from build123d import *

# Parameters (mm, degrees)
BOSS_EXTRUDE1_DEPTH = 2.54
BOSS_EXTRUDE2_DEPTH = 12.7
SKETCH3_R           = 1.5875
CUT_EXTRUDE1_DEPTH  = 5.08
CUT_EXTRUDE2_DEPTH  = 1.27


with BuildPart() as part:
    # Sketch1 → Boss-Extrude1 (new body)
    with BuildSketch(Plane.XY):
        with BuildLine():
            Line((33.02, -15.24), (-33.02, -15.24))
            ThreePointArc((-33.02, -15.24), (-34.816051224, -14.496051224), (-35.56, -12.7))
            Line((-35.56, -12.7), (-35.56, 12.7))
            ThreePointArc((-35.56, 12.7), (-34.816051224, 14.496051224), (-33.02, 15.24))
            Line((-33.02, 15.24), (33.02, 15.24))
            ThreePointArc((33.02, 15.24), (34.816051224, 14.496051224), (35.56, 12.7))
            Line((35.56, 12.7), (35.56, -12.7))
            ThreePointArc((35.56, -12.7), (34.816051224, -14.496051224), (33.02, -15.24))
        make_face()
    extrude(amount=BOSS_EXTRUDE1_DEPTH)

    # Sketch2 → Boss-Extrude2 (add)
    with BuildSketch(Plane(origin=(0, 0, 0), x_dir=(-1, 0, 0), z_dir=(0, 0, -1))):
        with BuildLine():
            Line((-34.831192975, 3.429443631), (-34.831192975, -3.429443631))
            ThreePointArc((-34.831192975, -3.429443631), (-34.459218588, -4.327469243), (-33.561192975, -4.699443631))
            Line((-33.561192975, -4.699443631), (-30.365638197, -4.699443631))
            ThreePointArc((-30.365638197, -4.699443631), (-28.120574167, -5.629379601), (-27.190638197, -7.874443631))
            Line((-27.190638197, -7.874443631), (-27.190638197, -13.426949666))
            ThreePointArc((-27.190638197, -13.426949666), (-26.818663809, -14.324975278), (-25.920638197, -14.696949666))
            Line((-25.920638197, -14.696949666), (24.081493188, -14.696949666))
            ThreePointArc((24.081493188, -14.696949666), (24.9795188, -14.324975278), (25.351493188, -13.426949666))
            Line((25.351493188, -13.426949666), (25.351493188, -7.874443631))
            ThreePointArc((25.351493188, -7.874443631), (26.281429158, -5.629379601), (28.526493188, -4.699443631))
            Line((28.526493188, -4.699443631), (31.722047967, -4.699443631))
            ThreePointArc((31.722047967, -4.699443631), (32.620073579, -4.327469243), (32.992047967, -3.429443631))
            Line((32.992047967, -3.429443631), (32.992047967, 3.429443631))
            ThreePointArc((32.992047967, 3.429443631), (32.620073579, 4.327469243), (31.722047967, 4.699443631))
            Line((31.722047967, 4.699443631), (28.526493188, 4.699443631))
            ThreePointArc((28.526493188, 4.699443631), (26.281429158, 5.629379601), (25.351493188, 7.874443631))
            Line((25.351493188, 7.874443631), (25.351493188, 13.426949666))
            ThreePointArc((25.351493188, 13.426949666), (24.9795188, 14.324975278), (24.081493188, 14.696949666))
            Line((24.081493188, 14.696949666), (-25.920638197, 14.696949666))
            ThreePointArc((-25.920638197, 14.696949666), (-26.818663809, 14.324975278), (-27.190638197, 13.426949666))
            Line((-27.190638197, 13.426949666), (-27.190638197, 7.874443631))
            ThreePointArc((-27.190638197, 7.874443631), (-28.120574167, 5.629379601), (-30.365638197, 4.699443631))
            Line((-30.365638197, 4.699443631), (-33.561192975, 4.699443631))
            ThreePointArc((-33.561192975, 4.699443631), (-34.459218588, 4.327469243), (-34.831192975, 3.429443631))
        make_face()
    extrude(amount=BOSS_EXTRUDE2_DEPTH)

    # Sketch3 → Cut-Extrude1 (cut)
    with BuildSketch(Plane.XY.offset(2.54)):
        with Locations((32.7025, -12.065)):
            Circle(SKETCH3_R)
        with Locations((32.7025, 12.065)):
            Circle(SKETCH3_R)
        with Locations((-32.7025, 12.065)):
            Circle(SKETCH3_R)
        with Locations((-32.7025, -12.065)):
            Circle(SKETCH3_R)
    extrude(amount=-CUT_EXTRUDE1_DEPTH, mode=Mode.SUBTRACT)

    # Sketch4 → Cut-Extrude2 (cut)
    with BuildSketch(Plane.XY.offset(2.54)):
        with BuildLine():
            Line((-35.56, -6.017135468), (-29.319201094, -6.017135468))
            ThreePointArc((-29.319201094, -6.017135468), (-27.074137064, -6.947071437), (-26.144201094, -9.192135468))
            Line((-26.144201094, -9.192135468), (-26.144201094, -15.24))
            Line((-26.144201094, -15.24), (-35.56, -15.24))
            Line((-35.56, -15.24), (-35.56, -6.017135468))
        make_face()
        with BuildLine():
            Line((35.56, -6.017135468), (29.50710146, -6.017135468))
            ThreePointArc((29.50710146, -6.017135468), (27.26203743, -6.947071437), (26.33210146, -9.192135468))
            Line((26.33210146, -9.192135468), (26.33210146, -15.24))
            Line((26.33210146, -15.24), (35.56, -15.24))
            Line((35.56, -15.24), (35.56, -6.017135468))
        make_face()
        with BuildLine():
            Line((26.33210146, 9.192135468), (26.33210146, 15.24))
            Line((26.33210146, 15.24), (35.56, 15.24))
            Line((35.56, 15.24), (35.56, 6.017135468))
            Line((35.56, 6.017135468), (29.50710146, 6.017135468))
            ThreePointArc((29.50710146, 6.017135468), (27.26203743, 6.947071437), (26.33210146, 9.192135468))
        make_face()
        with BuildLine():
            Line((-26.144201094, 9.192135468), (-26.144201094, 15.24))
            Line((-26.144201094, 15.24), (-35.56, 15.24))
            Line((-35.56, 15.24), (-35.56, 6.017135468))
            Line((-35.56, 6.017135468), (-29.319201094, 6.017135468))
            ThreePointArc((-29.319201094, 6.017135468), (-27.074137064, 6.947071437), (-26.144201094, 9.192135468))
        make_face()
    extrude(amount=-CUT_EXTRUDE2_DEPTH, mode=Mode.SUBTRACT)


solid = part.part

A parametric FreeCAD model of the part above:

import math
import FreeCAD as App
import Part
import Sketcher
from FreeCAD import Vector
Q = App.Units.Quantity

doc = App.newDocument("Part")
body = doc.addObject("PartDesign::Body", "Body")

sketch1 = doc.addObject("Sketcher::SketchObject", "Sketch")
body.addObject(sketch1)
sketch1.AttachmentSupport = (doc.XY_Plane, [""])
sketch1.MapMode = "FlatFace"
sketch1.addGeometry(Part.LineSegment(Vector(-33, -15.2, 0), Vector(33, -15.2, 0)), False)
sketch1.addGeometry(Part.ArcOfCircle(Part.Circle(Vector(33, -12.7, 0), Vector(0, 0, 1), 2.5), math.radians(-90), math.radians(0)), False)
sketch1.addGeometry(Part.LineSegment(Vector(35.6, -12.7, 0), Vector(35.6, 12.7, 0)), False)
sketch1.addGeometry(Part.ArcOfCircle(Part.Circle(Vector(33, 12.7, 0), Vector(0, 0, 1), 2.5), math.radians(0), math.radians(90)), False)
sketch1.addGeometry(Part.LineSegment(Vector(33, 15.2, 0), Vector(-33, 15.2, 0)), False)
sketch1.addGeometry(Part.ArcOfCircle(Part.Circle(Vector(-33, 12.7, 0), Vector(0, 0, 1), 2.5), math.radians(90), math.radians(180)), False)
sketch1.addGeometry(Part.LineSegment(Vector(-35.6, 12.7, 0), Vector(-35.6, -12.7, 0)), False)
sketch1.addGeometry(Part.ArcOfCircle(Part.Circle(Vector(-33, -12.7, 0), Vector(0, 0, 1), 2.5), math.radians(-180), math.radians(-90)), False)
sketch1.addConstraint(Sketcher.Constraint("Tangent", 0, 2, 1, 1))
sketch1.addConstraint(Sketcher.Constraint("Tangent", 1, 2, 2, 1))
sketch1.addConstraint(Sketcher.Constraint("Tangent", 2, 2, 3, 1))
sketch1.addConstraint(Sketcher.Constraint("Tangent", 3, 2, 4, 1))
sketch1.addConstraint(Sketcher.Constraint("Tangent", 4, 2, 5, 1))
sketch1.addConstraint(Sketcher.Constraint("Tangent", 5, 2, 6, 1))
sketch1.addConstraint(Sketcher.Constraint("Tangent", 6, 2, 7, 1))
sketch1.addConstraint(Sketcher.Constraint("Tangent", 7, 2, 0, 1))
sketch1.addConstraint(Sketcher.Constraint("Horizontal", 0))
sketch1.addConstraint(Sketcher.Constraint("Vertical", 2))
sketch1.addConstraint(Sketcher.Constraint("Horizontal", 4))
sketch1.addConstraint(Sketcher.Constraint("Vertical", 6))
sketch1.addConstraint(Sketcher.Constraint("Equal", 1, 3))
sketch1.addConstraint(Sketcher.Constraint("Equal", 3, 5))
sketch1.addConstraint(Sketcher.Constraint("Equal", 5, 7))
sketch1.addConstraint(Sketcher.Constraint("Symmetric", 1, 3, 5, 3, -1, 1))
sketch1.addConstraint(Sketcher.Constraint("Radius", 1, Q("0.1 in")))
sketch1.addConstraint(Sketcher.Constraint("DistanceY", 2, 1, 2, 2, Q("1 in")))
sketch1.addConstraint(Sketcher.Constraint("DistanceX", 0, 1, 0, 2, Q("2.6 in")))
pad1 = doc.addObject("PartDesign::Pad", "Pad")
body.addObject(pad1)
pad1.Profile = sketch1
pad1.Length = Q("0.1 in")

sketch2 = doc.addObject("Sketcher::SketchObject", "Sketch001")
body.addObject(sketch2)
sketch2.AttachmentSupport = (doc.XY_Plane, [""])
sketch2.MapMode = "FlatFace"
sketch2.addGeometry(Part.LineSegment(Vector(34.8, 3.4, 0), Vector(34.8, -3.4, 0)), False)
sketch2.addGeometry(Part.ArcOfCircle(Part.Circle(Vector(33.6, -3.4, 0), Vector(0, 0, 1), 1.3), math.radians(-90), math.radians(0)), False)
sketch2.addGeometry(Part.LineSegment(Vector(33.6, -4.7, 0), Vector(30.4, -4.7, 0)), False)
sketch2.addGeometry(Part.ArcOfCircle(Part.Circle(Vector(30.4, -7.9, 0), Vector(0, 0, 1), 3.2), math.radians(90), math.radians(180)), False)
sketch2.addGeometry(Part.LineSegment(Vector(27.2, -7.9, 0), Vector(27.2, -13.4, 0)), False)
sketch2.addGeometry(Part.ArcOfCircle(Part.Circle(Vector(25.9, -13.4, 0), Vector(0, 0, 1), 1.3), math.radians(-90), math.radians(0)), False)
sketch2.addGeometry(Part.LineSegment(Vector(25.9, -14.7, 0), Vector(-24.1, -14.7, 0)), False)
sketch2.addGeometry(Part.ArcOfCircle(Part.Circle(Vector(-24.1, -13.4, 0), Vector(0, 0, 1), 1.3), math.radians(180), math.radians(270)), False)
sketch2.addGeometry(Part.LineSegment(Vector(-25.4, -13.4, 0), Vector(-25.4, -7.9, 0)), False)
sketch2.addGeometry(Part.ArcOfCircle(Part.Circle(Vector(-28.5, -7.9, 0), Vector(0, 0, 1), 3.2), math.radians(0), math.radians(90)), False)
sketch2.addGeometry(Part.LineSegment(Vector(-28.5, -4.7, 0), Vector(-31.7, -4.7, 0)), False)
sketch2.addGeometry(Part.ArcOfCircle(Part.Circle(Vector(-31.7, -3.4, 0), Vector(0, 0, 1), 1.3), math.radians(180), math.radians(270)), False)
sketch2.addGeometry(Part.LineSegment(Vector(-33, -3.4, 0), Vector(-33, 3.4, 0)), False)
sketch2.addGeometry(Part.ArcOfCircle(Part.Circle(Vector(-31.7, 3.4, 0), Vector(0, 0, 1), 1.3), math.radians(90), math.radians(180)), False)
sketch2.addGeometry(Part.LineSegment(Vector(-31.7, 4.7, 0), Vector(-28.5, 4.7, 0)), False)
sketch2.addGeometry(Part.ArcOfCircle(Part.Circle(Vector(-28.5, 7.9, 0), Vector(0, 0, 1), 3.2), math.radians(-90), math.radians(0)), False)
sketch2.addGeometry(Part.LineSegment(Vector(-25.4, 7.9, 0), Vector(-25.4, 13.4, 0)), False)
sketch2.addGeometry(Part.ArcOfCircle(Part.Circle(Vector(-24.1, 13.4, 0), Vector(0, 0, 1), 1.3), math.radians(90), math.radians(180)), False)
sketch2.addGeometry(Part.LineSegment(Vector(-24.1, 14.7, 0), Vector(25.9, 14.7, 0)), False)
sketch2.addGeometry(Part.ArcOfCircle(Part.Circle(Vector(25.9, 13.4, 0), Vector(0, 0, 1), 1.3), math.radians(0), math.radians(90)), False)
sketch2.addGeometry(Part.LineSegment(Vector(27.2, 13.4, 0), Vector(27.2, 7.9, 0)), False)
sketch2.addGeometry(Part.ArcOfCircle(Part.Circle(Vector(30.4, 7.9, 0), Vector(0, 0, 1), 3.2), math.radians(-180), math.radians(-90)), False)
sketch2.addGeometry(Part.LineSegment(Vector(30.4, 4.7, 0), Vector(33.6, 4.7, 0)), False)
sketch2.addGeometry(Part.ArcOfCircle(Part.Circle(Vector(33.6, 3.4, 0), Vector(0, 0, 1), 1.3), math.radians(0), math.radians(90)), False)
sketch2.addConstraint(Sketcher.Constraint("Tangent", 0, 2, 1, 2))
sketch2.addConstraint(Sketcher.Constraint("Tangent", 1, 1, 2, 1))
sketch2.addConstraint(Sketcher.Constraint("Tangent", 2, 2, 3, 1))
sketch2.addConstraint(Sketcher.Constraint("Tangent", 3, 2, 4, 1))
sketch2.addConstraint(Sketcher.Constraint("Tangent", 4, 2, 5, 2))
sketch2.addConstraint(Sketcher.Constraint("Tangent", 5, 1, 6, 1))
sketch2.addConstraint(Sketcher.Constraint("Tangent", 6, 2, 7, 2))
sketch2.addConstraint(Sketcher.Constraint("Tangent", 7, 1, 8, 1))
sketch2.addConstraint(Sketcher.Constraint("Tangent", 8, 2, 9, 1))
sketch2.addConstraint(Sketcher.Constraint("Tangent", 9, 2, 10, 1))
sketch2.addConstraint(Sketcher.Constraint("Tangent", 10, 2, 11, 2))
sketch2.addConstraint(Sketcher.Constraint("Tangent", 11, 1, 12, 1))
sketch2.addConstraint(Sketcher.Constraint("Tangent", 12, 2, 13, 2))
sketch2.addConstraint(Sketcher.Constraint("Tangent", 13, 1, 14, 1))
sketch2.addConstraint(Sketcher.Constraint("Tangent", 14, 2, 15, 1))
sketch2.addConstraint(Sketcher.Constraint("Tangent", 15, 2, 16, 1))
sketch2.addConstraint(Sketcher.Constraint("Tangent", 16, 2, 17, 2))
sketch2.addConstraint(Sketcher.Constraint("Tangent", 17, 1, 18, 1))
sketch2.addConstraint(Sketcher.Constraint("Tangent", 18, 2, 19, 2))
sketch2.addConstraint(Sketcher.Constraint("Tangent", 19, 1, 20, 1))
sketch2.addConstraint(Sketcher.Constraint("Tangent", 20, 2, 21, 1))
sketch2.addConstraint(Sketcher.Constraint("Tangent", 21, 2, 22, 1))
sketch2.addConstraint(Sketcher.Constraint("Tangent", 22, 2, 23, 2))
sketch2.addConstraint(Sketcher.Constraint("Tangent", 23, 1, 0, 1))
sketch2.addConstraint(Sketcher.Constraint("Vertical", 0))
sketch2.addConstraint(Sketcher.Constraint("Horizontal", 2))
sketch2.addConstraint(Sketcher.Constraint("Vertical", 4))
sketch2.addConstraint(Sketcher.Constraint("Horizontal", 6))
sketch2.addConstraint(Sketcher.Constraint("Vertical", 8))
sketch2.addConstraint(Sketcher.Constraint("Horizontal", 10))
sketch2.addConstraint(Sketcher.Constraint("Vertical", 12))
sketch2.addConstraint(Sketcher.Constraint("Horizontal", 14))
sketch2.addConstraint(Sketcher.Constraint("Vertical", 16))
sketch2.addConstraint(Sketcher.Constraint("Horizontal", 18))
sketch2.addConstraint(Sketcher.Constraint("Vertical", 20))
sketch2.addConstraint(Sketcher.Constraint("Horizontal", 22))
sketch2.addConstraint(Sketcher.Constraint("Equal", 1, 5))
sketch2.addConstraint(Sketcher.Constraint("Equal", 5, 7))
sketch2.addConstraint(Sketcher.Constraint("Equal", 3, 9))
sketch2.addConstraint(Sketcher.Constraint("Equal", 7, 11))
sketch2.addConstraint(Sketcher.Constraint("Equal", 11, 13))
sketch2.addConstraint(Sketcher.Constraint("Equal", 9, 15))
sketch2.addConstraint(Sketcher.Constraint("Equal", 13, 17))
sketch2.addConstraint(Sketcher.Constraint("Equal", 17, 19))
sketch2.addConstraint(Sketcher.Constraint("Equal", 15, 21))
sketch2.addConstraint(Sketcher.Constraint("Equal", 19, 23))
sketch2.addConstraint(Sketcher.Constraint("Symmetric", 9, 3, 15, 3, -1))
sketch2.addConstraint(Sketcher.Constraint("Symmetric", 5, 3, 19, 3, -1))
sketch2.addConstraint(Sketcher.Constraint("Horizontal", 3, 3, 9, 3))
sketch2.addConstraint(Sketcher.Constraint("Horizontal", 15, 3, 21, 3))
sketch2.addConstraint(Sketcher.Constraint("Equal", 2, 10))
sketch2.addConstraint(Sketcher.Constraint("Radius", 1, Q("0.05 in")))
sketch2.addConstraint(Sketcher.Constraint("Radius", 3, Q("0.125 in")))
sketch2.addConstraint(Sketcher.Constraint("DistanceX", 6, 2, 6, 1, 50.002131))
sketch2.addConstraint(Sketcher.Constraint("DistanceY", 7, 3, 17, 3, 26.853899))
sketch2.addConstraint(Sketcher.Constraint("DistanceX", 2, 2, 2, 1, 3.195555))
sketch2.addConstraint(Sketcher.Constraint("DistanceY", 0, 2, 0, 1, 6.858887))
sketch2.addConstraint(Sketcher.Constraint("DistanceX", -1, 1, 3, 3, 30.365638))
pad2 = doc.addObject("PartDesign::Pad", "Pad001")
body.addObject(pad2)
pad2.Profile = sketch2
pad2.Length = Q("0.5 in")
pad2.Reversed = True

sketch3 = doc.addObject("Sketcher::SketchObject", "Sketch002")
body.addObject(sketch3)
sketch3.AttachmentSupport = (doc.XY_Plane, [""])
sketch3.MapMode = "FlatFace"
sketch3.AttachmentOffset = App.Placement(Vector(0, 0, 0.1 * 25.4), App.Rotation())
sketch3.addGeometry(Part.Circle(Vector(32.7, -12.1, 0), Vector(0, 0, 1), 1.6), False)
sketch3.addGeometry(Part.Circle(Vector(32.7, 12.1, 0), Vector(0, 0, 1), 1.6), False)
sketch3.addGeometry(Part.Circle(Vector(-32.7, 12.1, 0), Vector(0, 0, 1), 1.6), False)
sketch3.addGeometry(Part.Circle(Vector(-32.7, -12.1, 0), Vector(0, 0, 1), 1.6), False)
sketch3.addConstraint(Sketcher.Constraint("Equal", 0, 1))
sketch3.addConstraint(Sketcher.Constraint("Equal", 1, 2))
sketch3.addConstraint(Sketcher.Constraint("Equal", 2, 3))
sketch3.addConstraint(Sketcher.Constraint("Symmetric", 0, 3, 2, 3, -1, 1))
sketch3.addConstraint(Sketcher.Constraint("Symmetric", 1, 3, 3, 3, -1, 1))
sketch3.addConstraint(Sketcher.Constraint("Symmetric", 1, 3, 2, 3, -2))
sketch3.addConstraint(Sketcher.Constraint("Diameter", 0, Q("0.125 in")))
sketch3.addConstraint(Sketcher.Constraint("DistanceY", 0, 3, 1, 3, Q("0.95 in")))
sketch3.addConstraint(Sketcher.Constraint("DistanceX", 2, 3, 1, 3, Q("2.575 in")))
pocket1 = doc.addObject("PartDesign::Pocket", "Pocket")
body.addObject(pocket1)
pocket1.Profile = sketch3
pocket1.Length = Q("0.2 in")

sketch4 = doc.addObject("Sketcher::SketchObject", "Sketch003")
body.addObject(sketch4)
sketch4.AttachmentSupport = (doc.XY_Plane, [""])
sketch4.MapMode = "FlatFace"
sketch4.AttachmentOffset = App.Placement(Vector(0, 0, 0.1 * 25.4), App.Rotation())
sketch4.addGeometry(Part.LineSegment(Vector(-29.3, -6, 0), Vector(-35.6, -6, 0)), False)
sketch4.addGeometry(Part.LineSegment(Vector(-35.6, -6, 0), Vector(-35.6, -15.2, 0)), False)
sketch4.addGeometry(Part.LineSegment(Vector(-35.6, -15.2, 0), Vector(-26.1, -15.2, 0)), False)
sketch4.addGeometry(Part.LineSegment(Vector(-26.1, -15.2, 0), Vector(-26.1, -9.2, 0)), False)
sketch4.addGeometry(Part.ArcOfCircle(Part.Circle(Vector(-29.3, -9.2, 0), Vector(0, 0, 1), 3.2), math.radians(0), math.radians(90)), False)
sketch4.addGeometry(Part.LineSegment(Vector(35.6, -6, 0), Vector(29.5, -6, 0)), False)
sketch4.addGeometry(Part.ArcOfCircle(Part.Circle(Vector(29.5, -9.2, 0), Vector(0, 0, 1), 3.2), math.radians(90), math.radians(180)), False)
sketch4.addGeometry(Part.LineSegment(Vector(26.3, -9.2, 0), Vector(26.3, -15.2, 0)), False)
sketch4.addGeometry(Part.LineSegment(Vector(26.3, -15.2, 0), Vector(35.6, -15.2, 0)), False)
sketch4.addGeometry(Part.LineSegment(Vector(35.6, -15.2, 0), Vector(35.6, -6, 0)), False)
sketch4.addGeometry(Part.LineSegment(Vector(26.3, 15.2, 0), Vector(26.3, 9.2, 0)), False)
sketch4.addGeometry(Part.ArcOfCircle(Part.Circle(Vector(29.5, 9.2, 0), Vector(0, 0, 1), 3.2), math.radians(180), math.radians(270)), False)
sketch4.addGeometry(Part.LineSegment(Vector(29.5, 6, 0), Vector(35.6, 6, 0)), False)
sketch4.addGeometry(Part.LineSegment(Vector(35.6, 6, 0), Vector(35.6, 15.2, 0)), False)
sketch4.addGeometry(Part.LineSegment(Vector(35.6, 15.2, 0), Vector(26.3, 15.2, 0)), False)
sketch4.addGeometry(Part.LineSegment(Vector(-26.1, 9.2, 0), Vector(-26.1, 15.2, 0)), False)
sketch4.addGeometry(Part.LineSegment(Vector(-26.1, 15.2, 0), Vector(-35.6, 15.2, 0)), False)
sketch4.addGeometry(Part.LineSegment(Vector(-35.6, 15.2, 0), Vector(-35.6, 6, 0)), False)
sketch4.addGeometry(Part.LineSegment(Vector(-35.6, 6, 0), Vector(-29.3, 6, 0)), False)
sketch4.addGeometry(Part.ArcOfCircle(Part.Circle(Vector(-29.3, 9.2, 0), Vector(0, 0, 1), 3.2), math.radians(-90), math.radians(0)), False)
sketch4.addConstraint(Sketcher.Constraint("Coincident", 0, 2, 1, 1))
sketch4.addConstraint(Sketcher.Constraint("Coincident", 1, 2, 2, 1))
sketch4.addConstraint(Sketcher.Constraint("Coincident", 2, 2, 3, 1))
sketch4.addConstraint(Sketcher.Constraint("Tangent", 3, 2, 4, 1))
sketch4.addConstraint(Sketcher.Constraint("Tangent", 4, 2, 0, 1))
sketch4.addConstraint(Sketcher.Constraint("Tangent", 5, 2, 6, 1))
sketch4.addConstraint(Sketcher.Constraint("Tangent", 6, 2, 7, 1))
sketch4.addConstraint(Sketcher.Constraint("Coincident", 7, 2, 8, 1))
sketch4.addConstraint(Sketcher.Constraint("Coincident", 8, 2, 9, 1))
sketch4.addConstraint(Sketcher.Constraint("Coincident", 9, 2, 5, 1))
sketch4.addConstraint(Sketcher.Constraint("Tangent", 10, 2, 11, 1))
sketch4.addConstraint(Sketcher.Constraint("Tangent", 11, 2, 12, 1))
sketch4.addConstraint(Sketcher.Constraint("Coincident", 12, 2, 13, 1))
sketch4.addConstraint(Sketcher.Constraint("Coincident", 13, 2, 14, 1))
sketch4.addConstraint(Sketcher.Constraint("Coincident", 14, 2, 10, 1))
sketch4.addConstraint(Sketcher.Constraint("Coincident", 15, 2, 16, 1))
sketch4.addConstraint(Sketcher.Constraint("Coincident", 16, 2, 17, 1))
sketch4.addConstraint(Sketcher.Constraint("Coincident", 17, 2, 18, 1))
sketch4.addConstraint(Sketcher.Constraint("Tangent", 18, 2, 19, 1))
sketch4.addConstraint(Sketcher.Constraint("Tangent", 19, 2, 15, 1))
sketch4.addConstraint(Sketcher.Constraint("Horizontal", 0))
sketch4.addConstraint(Sketcher.Constraint("Vertical", 1))
sketch4.addConstraint(Sketcher.Constraint("Horizontal", 2))
sketch4.addConstraint(Sketcher.Constraint("Vertical", 3))
sketch4.addConstraint(Sketcher.Constraint("Horizontal", 5))
sketch4.addConstraint(Sketcher.Constraint("Vertical", 7))
sketch4.addConstraint(Sketcher.Constraint("Horizontal", 8))
sketch4.addConstraint(Sketcher.Constraint("Vertical", 9))
sketch4.addConstraint(Sketcher.Constraint("Vertical", 10))
sketch4.addConstraint(Sketcher.Constraint("Horizontal", 12))
sketch4.addConstraint(Sketcher.Constraint("Vertical", 13))
sketch4.addConstraint(Sketcher.Constraint("Horizontal", 14))
sketch4.addConstraint(Sketcher.Constraint("Vertical", 15))
sketch4.addConstraint(Sketcher.Constraint("Horizontal", 16))
sketch4.addConstraint(Sketcher.Constraint("Vertical", 17))
sketch4.addConstraint(Sketcher.Constraint("Horizontal", 18))
sketch4.addConstraint(Sketcher.Constraint("Equal", 4, 6))
sketch4.addConstraint(Sketcher.Constraint("Equal", 6, 11))
sketch4.addConstraint(Sketcher.Constraint("Equal", 11, 19))
sketch4.addConstraint(Sketcher.Constraint("Symmetric", 0, 2, 12, 2, -1, 1))
sketch4.addConstraint(Sketcher.Constraint("Symmetric", 8, 2, 16, 2, -1, 1))
sketch4.addConstraint(Sketcher.Constraint("Symmetric", 1, 2, 8, 2, -2))
sketch4.addConstraint(Sketcher.Constraint("Symmetric", 6, 3, 11, 3, -1))
sketch4.addConstraint(Sketcher.Constraint("Symmetric", 4, 3, 19, 3, -1))
sketch4.addConstraint(Sketcher.Constraint("Horizontal", 14, 2, 15, 2))
sketch4.addConstraint(Sketcher.Constraint("Radius", 4, Q("0.125 in")))
sketch4.addConstraint(Sketcher.Constraint("DistanceX", 0, 2, -1, 1, Q("1.4 in")))
sketch4.addConstraint(Sketcher.Constraint("DistanceY", 1, 2, -1, 1, Q("0.6 in")))
sketch4.addConstraint(Sketcher.Constraint("DistanceX", 0, 2, 0, 1, 6.240799))
sketch4.addConstraint(Sketcher.Constraint("DistanceX", 5, 2, 5, 1, 6.052899))
sketch4.addConstraint(Sketcher.Constraint("DistanceY", 1, 2, 1, 1, 9.222865))
pocket2 = doc.addObject("PartDesign::Pocket", "Pocket001")
body.addObject(pocket2)
pocket2.Profile = sketch4
pocket2.Length = Q("0.05 in")

doc.recompute()
